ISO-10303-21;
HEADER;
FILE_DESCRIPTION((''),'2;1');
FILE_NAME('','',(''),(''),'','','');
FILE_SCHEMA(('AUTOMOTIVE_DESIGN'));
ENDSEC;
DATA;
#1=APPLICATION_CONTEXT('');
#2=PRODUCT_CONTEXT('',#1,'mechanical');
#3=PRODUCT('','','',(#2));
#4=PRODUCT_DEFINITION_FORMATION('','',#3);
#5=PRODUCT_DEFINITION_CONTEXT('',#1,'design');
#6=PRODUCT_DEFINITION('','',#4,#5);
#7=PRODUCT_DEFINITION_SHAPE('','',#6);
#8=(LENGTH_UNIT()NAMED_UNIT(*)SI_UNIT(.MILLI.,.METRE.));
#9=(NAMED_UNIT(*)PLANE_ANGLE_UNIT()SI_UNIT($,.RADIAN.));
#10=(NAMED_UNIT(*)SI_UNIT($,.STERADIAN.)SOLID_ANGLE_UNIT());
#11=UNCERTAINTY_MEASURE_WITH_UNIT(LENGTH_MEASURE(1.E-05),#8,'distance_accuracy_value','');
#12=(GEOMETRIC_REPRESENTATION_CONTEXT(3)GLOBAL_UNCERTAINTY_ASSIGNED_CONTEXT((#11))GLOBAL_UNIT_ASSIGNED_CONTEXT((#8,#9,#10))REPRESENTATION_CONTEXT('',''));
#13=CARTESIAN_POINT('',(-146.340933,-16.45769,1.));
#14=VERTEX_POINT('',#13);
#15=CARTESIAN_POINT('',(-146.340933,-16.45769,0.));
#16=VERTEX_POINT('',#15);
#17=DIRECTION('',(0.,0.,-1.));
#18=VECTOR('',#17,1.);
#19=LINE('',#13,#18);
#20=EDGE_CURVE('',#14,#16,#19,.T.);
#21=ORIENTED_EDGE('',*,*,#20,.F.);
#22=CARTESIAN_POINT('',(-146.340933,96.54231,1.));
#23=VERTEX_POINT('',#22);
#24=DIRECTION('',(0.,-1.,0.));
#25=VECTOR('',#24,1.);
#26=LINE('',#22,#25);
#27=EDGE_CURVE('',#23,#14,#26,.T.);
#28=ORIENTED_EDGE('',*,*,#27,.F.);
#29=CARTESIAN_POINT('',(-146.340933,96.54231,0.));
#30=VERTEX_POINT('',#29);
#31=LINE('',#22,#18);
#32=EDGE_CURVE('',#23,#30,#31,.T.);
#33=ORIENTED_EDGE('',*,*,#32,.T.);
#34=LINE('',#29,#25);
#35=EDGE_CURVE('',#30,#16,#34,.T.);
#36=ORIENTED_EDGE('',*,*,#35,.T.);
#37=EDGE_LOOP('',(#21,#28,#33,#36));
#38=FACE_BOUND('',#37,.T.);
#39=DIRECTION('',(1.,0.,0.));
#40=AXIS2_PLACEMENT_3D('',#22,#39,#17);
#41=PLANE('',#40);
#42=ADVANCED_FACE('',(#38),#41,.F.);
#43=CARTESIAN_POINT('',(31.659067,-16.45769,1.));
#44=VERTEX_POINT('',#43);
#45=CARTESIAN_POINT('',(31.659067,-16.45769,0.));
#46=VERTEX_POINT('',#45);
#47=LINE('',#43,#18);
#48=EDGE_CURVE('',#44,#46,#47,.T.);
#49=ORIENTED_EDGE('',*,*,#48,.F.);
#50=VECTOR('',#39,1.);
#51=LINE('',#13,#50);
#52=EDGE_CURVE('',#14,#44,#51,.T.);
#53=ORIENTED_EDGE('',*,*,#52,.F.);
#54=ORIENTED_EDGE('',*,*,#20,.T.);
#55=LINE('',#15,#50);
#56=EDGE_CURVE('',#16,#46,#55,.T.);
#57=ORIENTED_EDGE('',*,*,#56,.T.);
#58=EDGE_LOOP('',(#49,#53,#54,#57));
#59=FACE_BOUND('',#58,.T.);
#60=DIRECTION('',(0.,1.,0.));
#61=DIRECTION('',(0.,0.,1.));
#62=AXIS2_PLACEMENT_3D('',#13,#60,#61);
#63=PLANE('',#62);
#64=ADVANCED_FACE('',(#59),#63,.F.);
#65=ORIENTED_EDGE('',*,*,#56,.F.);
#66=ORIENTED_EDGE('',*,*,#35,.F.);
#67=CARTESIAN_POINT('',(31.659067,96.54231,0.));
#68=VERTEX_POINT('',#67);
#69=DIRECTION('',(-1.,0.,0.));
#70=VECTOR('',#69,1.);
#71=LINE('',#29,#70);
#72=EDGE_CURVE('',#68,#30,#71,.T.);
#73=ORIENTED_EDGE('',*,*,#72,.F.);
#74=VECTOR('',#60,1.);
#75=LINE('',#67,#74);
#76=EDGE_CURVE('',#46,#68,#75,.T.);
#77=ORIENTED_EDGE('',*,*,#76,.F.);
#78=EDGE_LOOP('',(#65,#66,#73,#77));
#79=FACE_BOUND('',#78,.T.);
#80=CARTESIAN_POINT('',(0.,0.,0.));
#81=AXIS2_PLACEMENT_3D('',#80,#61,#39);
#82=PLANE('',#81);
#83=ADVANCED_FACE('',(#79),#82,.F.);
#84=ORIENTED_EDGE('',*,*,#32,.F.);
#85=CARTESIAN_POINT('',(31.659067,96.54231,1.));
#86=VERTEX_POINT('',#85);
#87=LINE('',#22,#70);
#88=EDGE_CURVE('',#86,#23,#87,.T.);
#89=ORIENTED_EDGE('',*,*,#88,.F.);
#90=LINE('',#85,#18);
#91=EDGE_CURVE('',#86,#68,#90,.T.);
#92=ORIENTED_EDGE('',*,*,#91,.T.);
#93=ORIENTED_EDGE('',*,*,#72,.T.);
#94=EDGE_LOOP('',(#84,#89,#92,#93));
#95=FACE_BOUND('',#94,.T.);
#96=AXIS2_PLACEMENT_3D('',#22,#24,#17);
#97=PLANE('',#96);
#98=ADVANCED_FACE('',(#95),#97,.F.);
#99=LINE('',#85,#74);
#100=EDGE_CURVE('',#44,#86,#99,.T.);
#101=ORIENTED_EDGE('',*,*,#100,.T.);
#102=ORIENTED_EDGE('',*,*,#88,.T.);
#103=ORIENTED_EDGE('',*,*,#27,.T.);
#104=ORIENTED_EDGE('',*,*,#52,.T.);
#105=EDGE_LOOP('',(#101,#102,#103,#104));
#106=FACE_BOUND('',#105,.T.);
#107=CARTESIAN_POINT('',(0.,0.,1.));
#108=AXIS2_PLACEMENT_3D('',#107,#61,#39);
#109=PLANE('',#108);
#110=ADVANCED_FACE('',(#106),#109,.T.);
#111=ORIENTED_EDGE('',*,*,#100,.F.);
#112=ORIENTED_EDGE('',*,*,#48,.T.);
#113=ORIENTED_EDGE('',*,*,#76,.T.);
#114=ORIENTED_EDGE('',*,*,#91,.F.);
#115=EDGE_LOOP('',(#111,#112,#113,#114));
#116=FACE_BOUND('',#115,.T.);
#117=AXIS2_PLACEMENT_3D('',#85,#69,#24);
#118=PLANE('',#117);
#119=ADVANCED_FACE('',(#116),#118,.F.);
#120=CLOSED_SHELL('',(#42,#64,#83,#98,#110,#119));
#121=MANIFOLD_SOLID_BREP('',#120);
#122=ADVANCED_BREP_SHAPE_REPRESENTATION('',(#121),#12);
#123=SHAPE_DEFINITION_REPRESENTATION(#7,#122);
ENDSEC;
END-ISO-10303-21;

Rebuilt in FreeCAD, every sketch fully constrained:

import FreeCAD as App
import Part
import Sketcher
from FreeCAD import Vector
Q = App.Units.Quantity

doc = App.newDocument("Part")
params = doc.addObject("Spreadsheet::Sheet", "Params")
for row, (alias, value) in enumerate([
    ("sketch1_width", "178 mm"),
    ("sketch1_height", "113 mm"),
    ("pad1_length", "1 mm"),
], start=1):
    params.set(f"A{row}", alias)
    params.set(f"B{row}", "=" + value)
    params.setAlias(f"B{row}", alias)

body = doc.addObject("PartDesign::Body", "Body")

# Sketch on XY plane
sketch1 = body.newObject("Sketcher::SketchObject", "Sketch")
sketch1.AttachmentSupport = (doc.getObject("XY_Plane"), [""])
sketch1.MapMode = "FlatFace"
sketch1.addGeometry([
    Part.LineSegment(Vector(-146.340933, 96.54231, 0), Vector(-146.340933, -16.45769, 0)),
    Part.LineSegment(Vector(-146.340933, -16.45769, 0), Vector(31.659067, -16.45769, 0)),
    Part.LineSegment(Vector(31.659067, -16.45769, 0), Vector(31.659067, 96.54231, 0)),
    Part.LineSegment(Vector(31.659067, 96.54231, 0), Vector(-146.340933, 96.54231, 0)),
], False)
sketch1.addConstraint([
    Sketcher.Constraint("Coincident", 0, 2, 1, 1),
    Sketcher.Constraint("Coincident", 1, 2, 2, 1),
    Sketcher.Constraint("Coincident", 2, 2, 3, 1),
    Sketcher.Constraint("Coincident", 3, 2, 0, 1),
    Sketcher.Constraint("Vertical", 0),
    Sketcher.Constraint("Horizontal", 1),
    Sketcher.Constraint("Vertical", 2),
    Sketcher.Constraint("Horizontal", 3),
    Sketcher.Constraint("DistanceX", 1, 1, 1, 2, Q("178 mm")),
    Sketcher.Constraint("DistanceY", 0, 2, 0, 1, Q("113 mm")),
    Sketcher.Constraint("DistanceY", 0, 2, -1, 1, Q("16.45769 mm")),
    Sketcher.Constraint("DistanceX", 0, 2, -1, 1, Q("146.340933 mm")),
])
sketch1.setExpression("Constraints[8]", "Params.sketch1_width")
sketch1.setExpression("Constraints[9]", "Params.sketch1_height")
pad1 = body.newObject("PartDesign::Pad", "Pad")
pad1.Profile = sketch1
pad1.setExpression("Length", "Params.pad1_length")

doc.recompute()
